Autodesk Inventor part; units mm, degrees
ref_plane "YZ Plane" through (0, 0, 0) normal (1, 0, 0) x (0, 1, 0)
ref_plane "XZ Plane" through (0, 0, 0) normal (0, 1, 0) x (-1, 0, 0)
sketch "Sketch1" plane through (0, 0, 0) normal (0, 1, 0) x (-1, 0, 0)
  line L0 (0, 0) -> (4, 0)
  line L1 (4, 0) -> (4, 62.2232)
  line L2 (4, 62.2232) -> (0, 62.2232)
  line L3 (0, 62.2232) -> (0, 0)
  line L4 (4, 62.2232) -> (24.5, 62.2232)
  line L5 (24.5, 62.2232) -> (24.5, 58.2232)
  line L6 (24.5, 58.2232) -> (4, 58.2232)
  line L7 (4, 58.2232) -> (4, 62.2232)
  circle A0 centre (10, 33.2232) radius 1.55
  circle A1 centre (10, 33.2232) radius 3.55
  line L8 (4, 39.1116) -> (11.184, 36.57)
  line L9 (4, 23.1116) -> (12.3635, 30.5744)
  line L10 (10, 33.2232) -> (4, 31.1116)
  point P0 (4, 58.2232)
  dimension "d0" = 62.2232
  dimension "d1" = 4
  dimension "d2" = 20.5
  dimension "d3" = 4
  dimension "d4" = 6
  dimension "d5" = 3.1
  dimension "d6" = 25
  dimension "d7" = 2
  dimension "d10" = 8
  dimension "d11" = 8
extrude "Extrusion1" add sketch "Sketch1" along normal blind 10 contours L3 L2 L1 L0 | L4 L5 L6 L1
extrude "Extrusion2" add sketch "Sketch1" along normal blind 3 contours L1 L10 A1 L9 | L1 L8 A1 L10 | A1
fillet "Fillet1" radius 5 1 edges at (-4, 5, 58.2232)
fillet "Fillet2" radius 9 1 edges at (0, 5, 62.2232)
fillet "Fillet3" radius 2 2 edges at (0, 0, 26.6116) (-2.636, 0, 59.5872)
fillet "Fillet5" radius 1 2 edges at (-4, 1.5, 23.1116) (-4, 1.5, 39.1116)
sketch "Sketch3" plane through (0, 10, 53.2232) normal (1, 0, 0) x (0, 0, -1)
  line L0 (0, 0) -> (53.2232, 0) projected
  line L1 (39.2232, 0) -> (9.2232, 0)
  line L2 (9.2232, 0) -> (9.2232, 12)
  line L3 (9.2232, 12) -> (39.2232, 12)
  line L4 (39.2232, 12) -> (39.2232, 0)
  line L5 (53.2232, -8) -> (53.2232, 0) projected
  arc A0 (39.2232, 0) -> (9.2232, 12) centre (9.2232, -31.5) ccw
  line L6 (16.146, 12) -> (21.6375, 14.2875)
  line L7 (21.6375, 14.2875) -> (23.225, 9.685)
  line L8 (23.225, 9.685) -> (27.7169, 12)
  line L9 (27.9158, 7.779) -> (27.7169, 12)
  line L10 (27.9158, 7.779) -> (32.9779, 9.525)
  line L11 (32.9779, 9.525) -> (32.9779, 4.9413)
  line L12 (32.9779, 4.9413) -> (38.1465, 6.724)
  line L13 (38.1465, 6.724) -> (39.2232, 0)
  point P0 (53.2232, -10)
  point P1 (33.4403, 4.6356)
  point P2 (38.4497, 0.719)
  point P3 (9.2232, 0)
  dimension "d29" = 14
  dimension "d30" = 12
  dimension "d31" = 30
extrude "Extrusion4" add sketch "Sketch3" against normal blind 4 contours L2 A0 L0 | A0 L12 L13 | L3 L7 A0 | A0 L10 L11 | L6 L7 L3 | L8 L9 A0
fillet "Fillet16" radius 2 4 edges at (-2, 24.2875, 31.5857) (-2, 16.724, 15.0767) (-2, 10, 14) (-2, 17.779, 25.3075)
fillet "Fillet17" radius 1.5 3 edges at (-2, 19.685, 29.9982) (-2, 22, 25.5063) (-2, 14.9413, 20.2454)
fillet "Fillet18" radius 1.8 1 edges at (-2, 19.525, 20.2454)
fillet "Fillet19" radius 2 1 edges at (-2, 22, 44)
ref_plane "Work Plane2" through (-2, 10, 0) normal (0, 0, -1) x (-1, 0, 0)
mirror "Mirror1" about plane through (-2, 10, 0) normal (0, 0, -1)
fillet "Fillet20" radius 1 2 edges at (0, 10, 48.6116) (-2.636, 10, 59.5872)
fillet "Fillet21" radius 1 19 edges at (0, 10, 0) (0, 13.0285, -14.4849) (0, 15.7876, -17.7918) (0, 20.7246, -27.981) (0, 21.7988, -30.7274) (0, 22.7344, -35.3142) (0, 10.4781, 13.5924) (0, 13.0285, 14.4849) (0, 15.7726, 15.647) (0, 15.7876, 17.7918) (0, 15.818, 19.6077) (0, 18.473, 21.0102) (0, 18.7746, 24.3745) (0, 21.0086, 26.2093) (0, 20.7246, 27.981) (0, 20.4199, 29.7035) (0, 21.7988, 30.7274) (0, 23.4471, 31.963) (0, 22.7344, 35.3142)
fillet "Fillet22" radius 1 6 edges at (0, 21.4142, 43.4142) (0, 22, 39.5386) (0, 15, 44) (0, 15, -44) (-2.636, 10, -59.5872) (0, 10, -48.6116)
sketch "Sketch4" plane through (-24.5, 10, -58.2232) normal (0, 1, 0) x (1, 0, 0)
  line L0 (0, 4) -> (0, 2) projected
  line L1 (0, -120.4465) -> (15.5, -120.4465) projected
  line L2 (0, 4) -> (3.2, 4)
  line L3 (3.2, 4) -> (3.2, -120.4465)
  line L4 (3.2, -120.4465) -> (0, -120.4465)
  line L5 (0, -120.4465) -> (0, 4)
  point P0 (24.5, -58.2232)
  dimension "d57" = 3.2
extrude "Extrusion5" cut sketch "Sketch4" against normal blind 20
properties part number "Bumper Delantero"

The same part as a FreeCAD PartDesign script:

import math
import FreeCAD as App
import Part
import Sketcher
Q = App.Units.Quantity


def edges_at(feature, points):
    """Names of the edges that pass closest to the given points."""
    edges = feature.Shape.Edges
    near = lambda p: min(range(len(edges)), key=lambda i: edges[i].distToShape(Part.Vertex(*p))[0])
    return sorted({f"Edge{near(p) + 1}" for p in points})


def add_polygon(sketch, points):
    """Adds a closed chain of lines whose ends are joined by coincident constraints."""
    first, n = sketch.GeometryCount, len(points)
    for a, b in zip(points, points[1:] + points[:1]):
        sketch.addGeometry(Part.LineSegment(App.Vector(*a, 0), App.Vector(*b, 0)), False)
    for i in range(n):
        sketch.addConstraint(Sketcher.Constraint("Coincident", first + i, 2, first + (i + 1) % n, 1))

doc = App.newDocument("Part")
body = doc.addObject("PartDesign::Body", "Body")

sketch1 = body.newObject("Sketcher::SketchObject", "Sketch")
sketch1.AttachmentSupport = (doc.getObject("XZ_Plane"), [""])
sketch1.MapMode = "FlatFace"
add_polygon(sketch1, [(0, 62.2232), (0, 0), (-4, 0), (-4, 58.2232), (-24.5, 58.2232), (-24.5, 62.2232)])
sketch1.addConstraint([
    Sketcher.Constraint("Vertical", 0),
    Sketcher.Constraint("Horizontal", 1),
    Sketcher.Constraint("Vertical", 2),
    Sketcher.Constraint("Horizontal", 3),
    Sketcher.Constraint("Vertical", 4),
    Sketcher.Constraint("Horizontal", 5),
    Sketcher.Constraint("Coincident", 0, 2, -1, 1),
    Sketcher.Constraint("Equal", 1, 4),
    Sketcher.Constraint("DistanceX", 1, 2, 1, 1, 4.0),
    Sketcher.Constraint("DistanceX", 3, 2, 3, 1, 20.5),
    Sketcher.Constraint("DistanceY", 0, 2, 0, 1, 62.2232),
])
pad1 = body.newObject("PartDesign::Pad", "Pad")
pad1.Profile = sketch1
pad1.Length = 10
pad1.Reversed = True

sketch2 = body.newObject("Sketcher::SketchObject", "Sketch001")
sketch2.AttachmentSupport = (doc.getObject("XZ_Plane"), [""])
sketch2.MapMode = "FlatFace"
sketch2.addGeometry([
    Part.LineSegment(App.Vector(-4, 23.1116, 0), App.Vector(-12.3635, 30.5744, 0)),
    Part.ArcOfCircle(Part.Circle(App.Vector(-10, 33.2232, 0), App.Vector(0, 0, 1), 3.55), math.radians(109.482291), math.radians(228.257759)),
    Part.LineSegment(App.Vector(-11.184, 36.57, 0), App.Vector(-4, 39.1116, 0)),
    Part.LineSegment(App.Vector(-4, 39.1116, 0), App.Vector(-4, 23.1116, 0)),
    Part.Circle(App.Vector(-10, 33.2232, 0), App.Vector(0, 0, 1), 1.55),
], False)
sketch2.addConstraint([
    Sketcher.Constraint("Tangent", 0, 2, 1, 2),
    Sketcher.Constraint("Tangent", 1, 1, 2, 1),
    Sketcher.Constraint("Coincident", 2, 2, 3, 1),
    Sketcher.Constraint("Coincident", 3, 2, 0, 1),
    Sketcher.Constraint("Vertical", 3),
    Sketcher.Constraint("Coincident", 4, 3, 1, 3),
    Sketcher.Constraint("Diameter", 4, 3.1),
    Sketcher.Constraint("DistanceX", 2, 2, -1, 1, 4.0),
    Sketcher.Constraint("DistanceX", 1, 3, 2, 2, 6.0),
    Sketcher.Constraint("DistanceY", 3, 2, 3, 1, 16.0),
    Sketcher.Constraint("Radius", 1, 3.55),
    Sketcher.Constraint("DistanceY", -1, 1, 1, 1, 36.57),
    Sketcher.Constraint("Distance", 0, 11.209),
])
pad2 = body.newObject("PartDesign::Pad", "Pad001")
pad2.Profile = sketch2
pad2.Length = 3
pad2.Reversed = True
doc.recompute()

fillet = body.newObject("PartDesign::Fillet", "Fillet")
fillet.Base = (pad2, edges_at(pad2, [(-4, 5, 58.223)]))
fillet.Radius = 5
doc.recompute()

fillet2 = body.newObject("PartDesign::Fillet", "Fillet001")
fillet2.Base = (fillet, edges_at(fillet, [(0, 5, 62.223)]))
fillet2.Radius = 9
doc.recompute()

fillet3 = body.newObject("PartDesign::Fillet", "Fillet002")
fillet3.Base = (fillet2, edges_at(fillet2, [(0, 0, 26.612), (-2.636, 0, 59.587)]))
fillet3.Radius = 2
doc.recompute()

fillet4 = body.newObject("PartDesign::Fillet", "Fillet003")
fillet4.Base = (fillet3, edges_at(fillet3, [(-4, 1.5, 23.112), (-4, 1.5, 39.112)]))
fillet4.Radius = 1

sketch3 = body.newObject("Sketcher::SketchObject", "Sketch002")
sketch3.AttachmentSupport = (doc.getObject("YZ_Plane"), [""])
sketch3.MapMode = "FlatFace"
add_polygon(sketch3, [(22, 44), (10, 44), (10, 14), (16.724, 15.0767), (14.9413, 20.2453), (19.525, 20.2453), (17.779, 25.3074), (22, 25.5063), (19.685, 29.9982), (24.2875, 31.5857), (22, 37.0772)])
sketch3.addConstraint([
    Sketcher.Constraint("Horizontal", 0),
    Sketcher.Constraint("Vertical", 1),
    Sketcher.Constraint("Horizontal", 4),
    Sketcher.Constraint("Vertical", 10),
    Sketcher.Constraint("Parallel", 3, 5),
    Sketcher.Constraint("Perpendicular", 5, 8),
    Sketcher.Constraint("Vertical", 6, 2, 9, 2),
    Sketcher.Constraint("DistanceX", 0, 2, 0, 1, 12.0),
    Sketcher.Constraint("DistanceY", 1, 2, 1, 1, 30.0),
    Sketcher.Constraint("DistanceY", -1, 1, 1, 2, 14.0),
    Sketcher.Constraint("DistanceX", -1, 1, 0, 2, 10.0),
    Sketcher.Constraint("Angle", 3, Q("109.0298 deg")),
    Sketcher.Constraint("DistanceX", 4, 2, 7, 2, 0.16),
    Sketcher.Constraint("Distance", 9, 5.949),
    Sketcher.Constraint("DistanceX", 4, 1, 4, 2, 4.5837),
    Sketcher.Constraint("DistanceY", 10, 1, 10, 2, 6.9228),
    Sketcher.Constraint("DistanceX", -1, 1, 2, 2, 16.724),
    Sketcher.Constraint("DistanceX", -1, 1, 4, 2, 19.525),
    Sketcher.Constraint("DistanceX", -1, 1, 5, 2, 17.779),
    Sketcher.Constraint("DistanceY", 5, 2, 6, 2, 0.199),
    Sketcher.Constraint("DistanceY", 6, 2, 7, 2, 4.492),
    Sketcher.Constraint("DistanceY", 7, 2, 9, 2, 7.079),
])
pad3 = body.newObject("PartDesign::Pad", "Pad002")
pad3.Profile = sketch3
pad3.Length = 4
pad3.Reversed = True
doc.recompute()

fillet5 = body.newObject("PartDesign::Fillet", "Fillet004")
fillet5.Base = (pad3, edges_at(pad3, [
    (-2, 24.288, 31.586),
    (-2, 16.724, 15.077),
    (-2, 10, 14),
    (-2, 17.779, 25.308),
]))
fillet5.Radius = 2
doc.recompute()

fillet6 = body.newObject("PartDesign::Fillet", "Fillet005")
fillet6.Base = (fillet5, edges_at(fillet5, [(-2, 19.685, 29.998), (-2, 22, 25.506), (-2, 14.941, 20.245)]))
fillet6.Radius = 1.5
doc.recompute()

fillet7 = body.newObject("PartDesign::Fillet", "Fillet006")
fillet7.Base = (fillet6, edges_at(fillet6, [(-2, 19.525, 20.245)]))
fillet7.Radius = 1.8
doc.recompute()

fillet8 = body.newObject("PartDesign::Fillet", "Fillet007")
fillet8.Base = (fillet7, edges_at(fillet7, [(-2, 22, 44)]))
fillet8.Radius = 2
doc.recompute()

mirrored = body.newObject("PartDesign::Mirrored", "Mirrored")
mirrored.TransformMode = "Transform body"
mirrored.MirrorPlane = (doc.getObject("XY_Plane"), [""])
body.Tip = mirrored
doc.recompute()

fillet9 = body.newObject("PartDesign::Fillet", "Fillet008")
fillet9.Base = (mirrored, edges_at(mirrored, [(0, 10, 48.612), (-2.636, 10, 59.587)]))
fillet9.Radius = 1
doc.recompute()

fillet10 = body.newObject("PartDesign::Fillet", "Fillet009")
fillet10.Base = (fillet9, edges_at(fillet9, [
    (0, 10, 0),
    (0, 13.028, -14.485),
    (0, 15.788, -17.792),
    (0, 20.725, -27.981),
    (0, 21.799, -30.727),
    (0, 22.734, -35.314),
    (0, 10.478, 13.592),
    (0, 13.028, 14.485),
    (0, 15.773, 15.647),
    (0, 15.788, 17.792),
    (0, 15.818, 19.608),
    (0, 18.473, 21.01),
    (0, 18.775, 24.375),
    (0, 21.009, 26.209),
    (0, 20.725, 27.981),
    (0, 20.42, 29.703),
    (0, 21.799, 30.727),
    (0, 23.447, 31.963),
    (0, 22.734, 35.314),
]))
fillet10.Radius = 1
doc.recompute()

fillet11 = body.newObject("PartDesign::Fillet", "Fillet010")
fillet11.Base = (fillet10, edges_at(fillet10, [
    (0, 21.414, 43.414),
    (0, 22, 39.539),
    (0, 15, 44),
    (0, 15, -44),
    (-2.636, 10, -59.587),
    (0, 10, -48.612),
]))
fillet11.Radius = 1

sketch4 = body.newObject("Sketcher::SketchObject", "Sketch003")
sketch4.AttachmentSupport = (doc.getObject("XZ_Plane"), [""])
sketch4.MapMode = "FlatFace"
sketch4.AttachmentOffset = App.Placement(App.Vector(0, 0, -10), App.Rotation())
add_polygon(sketch4, [(-21.3, -62.2232), (-24.5, -62.2232), (-24.5, 62.2233), (-21.3, 62.2233)])
sketch4.addConstraint([
    Sketcher.Constraint("Horizontal", 0),
    Sketcher.Constraint("Vertical", 1),
    Sketcher.Constraint("Horizontal", 2),
    Sketcher.Constraint("Vertical", 3),
    Sketcher.Constraint("DistanceX", 0, 2, 0, 1, 3.2),
    Sketcher.Constraint("DistanceX", 0, 2, -1, 1, 24.5),
    Sketcher.Constraint("DistanceY", 1, 1, 1, 2, 124.4465),
    Sketcher.Constraint("DistanceY", 0, 2, -1, 1, 62.2232),
])
pocket1 = body.newObject("PartDesign::Pocket", "Pocket")
pocket1.Profile = sketch4
pocket1.Length = 20
pocket1.Reversed = True

doc.recompute()
